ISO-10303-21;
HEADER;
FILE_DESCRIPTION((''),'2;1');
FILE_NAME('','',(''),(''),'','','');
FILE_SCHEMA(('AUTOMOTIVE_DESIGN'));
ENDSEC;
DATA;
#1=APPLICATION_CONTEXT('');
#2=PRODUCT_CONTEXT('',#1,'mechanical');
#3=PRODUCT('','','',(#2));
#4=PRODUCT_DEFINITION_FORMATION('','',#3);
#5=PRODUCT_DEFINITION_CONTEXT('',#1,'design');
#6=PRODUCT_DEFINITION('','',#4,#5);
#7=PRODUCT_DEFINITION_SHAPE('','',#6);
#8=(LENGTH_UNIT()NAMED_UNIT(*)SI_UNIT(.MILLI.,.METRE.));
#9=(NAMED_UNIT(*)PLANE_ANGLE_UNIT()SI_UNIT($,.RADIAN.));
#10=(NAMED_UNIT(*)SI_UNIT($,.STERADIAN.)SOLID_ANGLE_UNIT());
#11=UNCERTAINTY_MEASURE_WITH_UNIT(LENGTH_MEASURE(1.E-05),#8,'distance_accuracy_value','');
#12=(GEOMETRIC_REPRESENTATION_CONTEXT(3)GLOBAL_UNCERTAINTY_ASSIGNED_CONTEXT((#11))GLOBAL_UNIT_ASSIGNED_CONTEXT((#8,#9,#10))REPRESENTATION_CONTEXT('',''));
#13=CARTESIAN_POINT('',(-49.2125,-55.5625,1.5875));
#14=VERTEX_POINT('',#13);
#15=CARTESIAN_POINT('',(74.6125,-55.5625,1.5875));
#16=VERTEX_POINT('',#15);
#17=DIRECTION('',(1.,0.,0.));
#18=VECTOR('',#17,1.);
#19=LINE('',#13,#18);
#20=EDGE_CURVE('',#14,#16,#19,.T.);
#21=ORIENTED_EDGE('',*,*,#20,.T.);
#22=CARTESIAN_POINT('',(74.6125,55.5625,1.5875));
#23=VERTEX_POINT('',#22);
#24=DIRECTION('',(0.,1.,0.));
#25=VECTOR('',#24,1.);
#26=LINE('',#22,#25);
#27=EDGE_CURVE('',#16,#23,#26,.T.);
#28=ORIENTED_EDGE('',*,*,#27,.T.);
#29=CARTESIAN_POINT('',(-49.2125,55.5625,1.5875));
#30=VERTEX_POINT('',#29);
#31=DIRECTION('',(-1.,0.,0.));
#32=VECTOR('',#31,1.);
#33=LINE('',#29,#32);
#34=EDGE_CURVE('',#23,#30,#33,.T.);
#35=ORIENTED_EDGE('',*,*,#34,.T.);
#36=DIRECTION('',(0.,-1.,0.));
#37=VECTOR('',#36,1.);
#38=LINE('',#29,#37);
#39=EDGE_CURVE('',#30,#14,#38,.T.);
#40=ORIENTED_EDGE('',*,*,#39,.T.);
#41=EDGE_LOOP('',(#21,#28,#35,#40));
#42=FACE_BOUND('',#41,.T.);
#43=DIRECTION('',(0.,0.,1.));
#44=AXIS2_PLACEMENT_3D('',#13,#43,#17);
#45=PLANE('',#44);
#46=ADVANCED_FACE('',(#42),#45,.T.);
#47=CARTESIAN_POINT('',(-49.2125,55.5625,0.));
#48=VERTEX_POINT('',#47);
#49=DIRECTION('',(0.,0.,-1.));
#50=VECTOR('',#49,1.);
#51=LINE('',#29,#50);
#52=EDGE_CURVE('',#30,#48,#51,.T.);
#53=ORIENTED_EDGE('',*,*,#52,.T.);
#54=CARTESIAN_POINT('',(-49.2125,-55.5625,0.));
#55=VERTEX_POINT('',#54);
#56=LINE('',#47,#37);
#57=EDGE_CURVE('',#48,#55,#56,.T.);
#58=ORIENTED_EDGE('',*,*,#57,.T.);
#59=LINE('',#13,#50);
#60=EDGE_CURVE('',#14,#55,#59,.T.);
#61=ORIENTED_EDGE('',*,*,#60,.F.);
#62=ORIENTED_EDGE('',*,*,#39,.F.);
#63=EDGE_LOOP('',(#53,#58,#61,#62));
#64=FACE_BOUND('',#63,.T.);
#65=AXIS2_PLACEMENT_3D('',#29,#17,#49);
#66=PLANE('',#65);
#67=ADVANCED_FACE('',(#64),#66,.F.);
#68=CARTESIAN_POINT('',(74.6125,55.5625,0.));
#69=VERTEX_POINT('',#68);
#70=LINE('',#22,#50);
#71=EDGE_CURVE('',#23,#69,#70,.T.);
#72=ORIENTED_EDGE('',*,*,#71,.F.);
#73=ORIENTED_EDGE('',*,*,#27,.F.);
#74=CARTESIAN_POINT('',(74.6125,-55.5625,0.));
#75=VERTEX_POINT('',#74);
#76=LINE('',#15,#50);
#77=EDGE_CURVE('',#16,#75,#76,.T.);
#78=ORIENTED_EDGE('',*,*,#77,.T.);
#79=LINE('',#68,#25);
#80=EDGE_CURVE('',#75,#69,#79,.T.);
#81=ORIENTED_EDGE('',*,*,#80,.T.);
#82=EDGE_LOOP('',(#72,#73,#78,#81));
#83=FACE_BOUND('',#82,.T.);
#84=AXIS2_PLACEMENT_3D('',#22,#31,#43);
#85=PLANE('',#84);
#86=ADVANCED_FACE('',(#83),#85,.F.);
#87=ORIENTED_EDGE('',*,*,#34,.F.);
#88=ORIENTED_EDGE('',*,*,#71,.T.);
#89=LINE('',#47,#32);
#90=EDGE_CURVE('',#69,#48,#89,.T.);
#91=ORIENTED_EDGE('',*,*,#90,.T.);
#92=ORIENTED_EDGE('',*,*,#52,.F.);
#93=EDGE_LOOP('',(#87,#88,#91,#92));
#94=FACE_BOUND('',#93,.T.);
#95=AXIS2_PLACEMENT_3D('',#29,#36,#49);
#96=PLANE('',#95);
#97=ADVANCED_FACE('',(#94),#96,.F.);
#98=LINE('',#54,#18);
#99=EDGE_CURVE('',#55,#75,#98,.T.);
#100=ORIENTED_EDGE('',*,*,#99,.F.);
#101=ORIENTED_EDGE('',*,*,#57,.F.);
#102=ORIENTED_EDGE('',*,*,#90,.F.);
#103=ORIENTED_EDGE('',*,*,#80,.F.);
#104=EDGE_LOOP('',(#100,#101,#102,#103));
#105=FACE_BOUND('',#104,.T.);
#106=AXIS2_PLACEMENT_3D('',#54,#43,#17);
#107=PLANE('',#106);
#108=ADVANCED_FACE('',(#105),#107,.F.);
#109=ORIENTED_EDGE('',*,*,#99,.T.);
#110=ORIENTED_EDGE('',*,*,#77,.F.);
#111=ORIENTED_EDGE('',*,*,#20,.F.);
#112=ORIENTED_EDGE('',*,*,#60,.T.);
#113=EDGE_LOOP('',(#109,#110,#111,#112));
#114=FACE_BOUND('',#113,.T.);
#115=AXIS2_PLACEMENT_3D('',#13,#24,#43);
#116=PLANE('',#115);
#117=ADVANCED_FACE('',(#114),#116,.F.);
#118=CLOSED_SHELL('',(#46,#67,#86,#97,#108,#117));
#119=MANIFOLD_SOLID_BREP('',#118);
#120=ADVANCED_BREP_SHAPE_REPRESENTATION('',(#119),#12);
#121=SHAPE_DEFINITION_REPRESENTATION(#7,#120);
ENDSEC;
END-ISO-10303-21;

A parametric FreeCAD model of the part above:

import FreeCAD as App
import Part
import Sketcher

V = App.Vector
Q = App.Units.Quantity


def add_polygon(sketch, points):
    """Adds a closed chain of lines whose ends are joined by coincident constraints."""
    first, n = sketch.GeometryCount, len(points)
    for a, b in zip(points, points[1:] + points[:1]):
        sketch.addGeometry(Part.LineSegment(App.Vector(*a, 0), App.Vector(*b, 0)), False)
    for i in range(n):
        sketch.addConstraint(Sketcher.Constraint("Coincident", first + i, 2, first + (i + 1) % n, 1))

doc = App.newDocument("Part")
body = doc.addObject("PartDesign::Body", "Body")

sketch1 = doc.addObject("Sketcher::SketchObject", "Sketch")
body.addObject(sketch1)
sketch1.AttachmentSupport = (doc.XY_Plane, [""])
sketch1.MapMode = "FlatFace"
add_polygon(sketch1, [(-49, 56), (-49, -56), (75, -56), (75, 56)])
sketch1.addConstraint(Sketcher.Constraint("Vertical", 0))
sketch1.addConstraint(Sketcher.Constraint("Horizontal", 1))
sketch1.addConstraint(Sketcher.Constraint("Vertical", 2))
sketch1.addConstraint(Sketcher.Constraint("Horizontal", 3))
sketch1.addConstraint(Sketcher.Constraint("DistanceX", 1, 1, 1, 2, Q("4.875 in")))
sketch1.addConstraint(Sketcher.Constraint("DistanceY", 0, 2, 0, 1, Q("4.375 in")))
sketch1.addConstraint(Sketcher.Constraint("DistanceX", 0, 2, -1, 1, Q("1.9375 in")))
sketch1.addConstraint(Sketcher.Constraint("DistanceY", 0, 2, -1, 1, Q("2.1875 in")))
pad1 = doc.addObject("PartDesign::Pad", "Pad")
body.addObject(pad1)
pad1.Profile = sketch1
pad1.Length = Q("0.0625 in")

doc.recompute()
